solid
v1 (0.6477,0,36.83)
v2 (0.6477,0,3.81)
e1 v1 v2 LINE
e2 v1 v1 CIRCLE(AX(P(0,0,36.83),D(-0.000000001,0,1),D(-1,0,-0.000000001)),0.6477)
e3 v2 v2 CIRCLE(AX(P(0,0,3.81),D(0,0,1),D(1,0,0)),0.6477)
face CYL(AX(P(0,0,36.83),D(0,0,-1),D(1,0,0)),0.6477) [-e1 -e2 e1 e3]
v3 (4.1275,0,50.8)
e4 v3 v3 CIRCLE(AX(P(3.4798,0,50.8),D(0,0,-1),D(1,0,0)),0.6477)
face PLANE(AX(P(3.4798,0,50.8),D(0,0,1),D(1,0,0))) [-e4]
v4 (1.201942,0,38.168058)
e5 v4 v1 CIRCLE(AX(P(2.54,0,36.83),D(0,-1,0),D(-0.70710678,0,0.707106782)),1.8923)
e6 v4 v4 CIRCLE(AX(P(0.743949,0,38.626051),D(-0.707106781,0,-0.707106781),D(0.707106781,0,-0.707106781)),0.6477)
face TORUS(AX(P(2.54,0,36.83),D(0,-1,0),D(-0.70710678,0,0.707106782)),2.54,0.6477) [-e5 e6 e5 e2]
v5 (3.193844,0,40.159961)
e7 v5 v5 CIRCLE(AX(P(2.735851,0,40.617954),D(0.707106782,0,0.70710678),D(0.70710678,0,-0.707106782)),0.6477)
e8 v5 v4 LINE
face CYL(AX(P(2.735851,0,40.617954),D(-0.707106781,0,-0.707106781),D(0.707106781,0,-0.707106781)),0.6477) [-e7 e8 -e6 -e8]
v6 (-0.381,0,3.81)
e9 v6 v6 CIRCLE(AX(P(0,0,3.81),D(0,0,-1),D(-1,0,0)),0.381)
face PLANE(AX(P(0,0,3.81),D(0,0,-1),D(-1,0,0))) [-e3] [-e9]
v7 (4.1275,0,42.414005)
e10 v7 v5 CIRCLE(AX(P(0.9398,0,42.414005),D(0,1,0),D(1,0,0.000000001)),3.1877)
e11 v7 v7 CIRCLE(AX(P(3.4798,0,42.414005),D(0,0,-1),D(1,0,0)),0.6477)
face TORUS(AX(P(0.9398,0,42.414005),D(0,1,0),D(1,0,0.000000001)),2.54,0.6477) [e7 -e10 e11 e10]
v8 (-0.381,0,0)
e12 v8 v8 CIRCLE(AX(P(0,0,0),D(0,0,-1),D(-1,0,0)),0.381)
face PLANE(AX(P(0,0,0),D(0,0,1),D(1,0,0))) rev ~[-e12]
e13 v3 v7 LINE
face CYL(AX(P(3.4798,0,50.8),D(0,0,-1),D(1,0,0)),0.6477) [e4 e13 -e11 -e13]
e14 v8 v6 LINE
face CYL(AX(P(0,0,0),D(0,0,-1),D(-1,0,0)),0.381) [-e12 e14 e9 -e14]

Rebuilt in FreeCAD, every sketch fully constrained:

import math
import FreeCAD as App
import Part
import Sketcher
from FreeCAD import Vector
Q = App.Units.Quantity

doc = App.newDocument("Part")
body = doc.addObject("PartDesign::Body", "Body")

sketch1 = doc.addObject("Sketcher::SketchObject", "Sketch")
body.addObject(sketch1)
sketch1.AttachmentSupport = (doc.XY_Plane, [""])
sketch1.MapMode = "FlatFace"
sketch1.addGeometry(Part.Circle(Vector(0, 0, 0), Vector(0, 0, 1), 0.6), False)
sketch1.addConstraint([
    Sketcher.Constraint("Coincident", 0, 3, -1, 1),
    Sketcher.Constraint("Diameter", 0, Q("0.051 in")),
])
pad1 = doc.addObject("PartDesign::Pad", "Pad")
body.addObject(pad1)
pad1.Profile = sketch1
pad1.Length = Q("1.4 in")

sketch2 = doc.addObject("Sketcher::SketchObject", "Sketch001")
body.addObject(sketch2)
sketch2.AttachmentSupport = (doc.XY_Plane, [""])
sketch2.MapMode = "FlatFace"
sketch2.AttachmentOffset = App.Placement(Vector(0, 0, 1.4 * 25.4), App.Rotation())
sketch2.addGeometry(Part.Circle(Vector(0, 0, 0), Vector(0, 0, 1), 0.6), False)
sketch2.addConstraint([
    Sketcher.Constraint("Coincident", 0, 3, -1, 1),
    Sketcher.Constraint("Diameter", 0, Q("0.051 in")),
])

sketch3 = doc.addObject("Sketcher::SketchObject", "Sketch002")
body.addObject(sketch3)
sketch3.AttachmentSupport = (doc.XZ_Plane, [""])
sketch3.MapMode = "FlatFace"
sketch3.addGeometry([
    Part.LineSegment(Vector(3.5, 50.8, 0), Vector(3.5, 42.4, 0)),
    Part.ArcOfCircle(Part.Circle(Vector(0.9, 42.4, 0), Vector(0, 0, 1), 2.5), math.radians(-45), math.radians(0)),
    Part.LineSegment(Vector(2.7, 40.6, 0), Vector(0.7, 38.6, 0)),
    Part.ArcOfCircle(Part.Circle(Vector(2.5, 36.8, 0), Vector(0, 0, 1), 2.5), math.radians(135), math.radians(180)),
    Part.LineSegment(Vector(0, 36.8, 0), Vector(0, 35.6, 0)),
], False)
sketch3.addConstraint([
    Sketcher.Constraint("Tangent", 0, 2, 1, 2),
    Sketcher.Constraint("Tangent", 1, 1, 2, 1),
    Sketcher.Constraint("Tangent", 2, 2, 3, 1),
    Sketcher.Constraint("Tangent", 3, 2, 4, 1),
    Sketcher.Constraint("Vertical", 0),
    Sketcher.Constraint("Vertical", 4),
    Sketcher.Constraint("Equal", 1, 3),
    Sketcher.Constraint("PointOnObject", 3, 2, -2),
    Sketcher.Constraint("Radius", 1, Q("0.1 in")),
    Sketcher.Constraint("DistanceY", -1, 1, 0, 1, Q("2 in")),
    Sketcher.Constraint("Angle", 2, Q("-135 deg")),
    Sketcher.Constraint("DistanceY", 4, 2, 4, 1, Q("0.05 in")),
    Sketcher.Constraint("DistanceY", -1, 1, 4, 2, Q("1.4 in")),
    Sketcher.Constraint("DistanceX", -1, 1, 1, 3, Q("0.037 in")),
])
doc.recompute()

additivepipe = doc.addObject("PartDesign::AdditivePipe", "AdditivePipe")
body.addObject(additivepipe)
additivepipe.Profile = sketch2
additivepipe.Spine = (sketch3, ["Edge1", "Edge2", "Edge3", "Edge4", "Edge5"])

sketch4 = doc.addObject("Sketcher::SketchObject", "Sketch003")
body.addObject(sketch4)
sketch4.AttachmentSupport = (doc.XY_Plane, [""])
sketch4.MapMode = "FlatFace"
sketch4.addGeometry([
    Part.Circle(Vector(0, 0, 0), Vector(0, 0, 1), 0.65),
    Part.Circle(Vector(0, 0, 0), Vector(0, 0, 1), 0.38),
], False)
sketch4.addConstraint([
    Sketcher.Constraint("Coincident", 0, 3, -1, 1),
    Sketcher.Constraint("Coincident", 1, 3, -1, 1),
    Sketcher.Constraint("Diameter", 1, Q("0.03 in")),
    Sketcher.Constraint("Diameter", 0, Q("0.051 in")),
])
pocket1 = doc.addObject("PartDesign::Pocket", "Pocket")
body.addObject(pocket1)
pocket1.Profile = sketch4
pocket1.Length = Q("0.15 in")
pocket1.Reversed = True

doc.recompute()
